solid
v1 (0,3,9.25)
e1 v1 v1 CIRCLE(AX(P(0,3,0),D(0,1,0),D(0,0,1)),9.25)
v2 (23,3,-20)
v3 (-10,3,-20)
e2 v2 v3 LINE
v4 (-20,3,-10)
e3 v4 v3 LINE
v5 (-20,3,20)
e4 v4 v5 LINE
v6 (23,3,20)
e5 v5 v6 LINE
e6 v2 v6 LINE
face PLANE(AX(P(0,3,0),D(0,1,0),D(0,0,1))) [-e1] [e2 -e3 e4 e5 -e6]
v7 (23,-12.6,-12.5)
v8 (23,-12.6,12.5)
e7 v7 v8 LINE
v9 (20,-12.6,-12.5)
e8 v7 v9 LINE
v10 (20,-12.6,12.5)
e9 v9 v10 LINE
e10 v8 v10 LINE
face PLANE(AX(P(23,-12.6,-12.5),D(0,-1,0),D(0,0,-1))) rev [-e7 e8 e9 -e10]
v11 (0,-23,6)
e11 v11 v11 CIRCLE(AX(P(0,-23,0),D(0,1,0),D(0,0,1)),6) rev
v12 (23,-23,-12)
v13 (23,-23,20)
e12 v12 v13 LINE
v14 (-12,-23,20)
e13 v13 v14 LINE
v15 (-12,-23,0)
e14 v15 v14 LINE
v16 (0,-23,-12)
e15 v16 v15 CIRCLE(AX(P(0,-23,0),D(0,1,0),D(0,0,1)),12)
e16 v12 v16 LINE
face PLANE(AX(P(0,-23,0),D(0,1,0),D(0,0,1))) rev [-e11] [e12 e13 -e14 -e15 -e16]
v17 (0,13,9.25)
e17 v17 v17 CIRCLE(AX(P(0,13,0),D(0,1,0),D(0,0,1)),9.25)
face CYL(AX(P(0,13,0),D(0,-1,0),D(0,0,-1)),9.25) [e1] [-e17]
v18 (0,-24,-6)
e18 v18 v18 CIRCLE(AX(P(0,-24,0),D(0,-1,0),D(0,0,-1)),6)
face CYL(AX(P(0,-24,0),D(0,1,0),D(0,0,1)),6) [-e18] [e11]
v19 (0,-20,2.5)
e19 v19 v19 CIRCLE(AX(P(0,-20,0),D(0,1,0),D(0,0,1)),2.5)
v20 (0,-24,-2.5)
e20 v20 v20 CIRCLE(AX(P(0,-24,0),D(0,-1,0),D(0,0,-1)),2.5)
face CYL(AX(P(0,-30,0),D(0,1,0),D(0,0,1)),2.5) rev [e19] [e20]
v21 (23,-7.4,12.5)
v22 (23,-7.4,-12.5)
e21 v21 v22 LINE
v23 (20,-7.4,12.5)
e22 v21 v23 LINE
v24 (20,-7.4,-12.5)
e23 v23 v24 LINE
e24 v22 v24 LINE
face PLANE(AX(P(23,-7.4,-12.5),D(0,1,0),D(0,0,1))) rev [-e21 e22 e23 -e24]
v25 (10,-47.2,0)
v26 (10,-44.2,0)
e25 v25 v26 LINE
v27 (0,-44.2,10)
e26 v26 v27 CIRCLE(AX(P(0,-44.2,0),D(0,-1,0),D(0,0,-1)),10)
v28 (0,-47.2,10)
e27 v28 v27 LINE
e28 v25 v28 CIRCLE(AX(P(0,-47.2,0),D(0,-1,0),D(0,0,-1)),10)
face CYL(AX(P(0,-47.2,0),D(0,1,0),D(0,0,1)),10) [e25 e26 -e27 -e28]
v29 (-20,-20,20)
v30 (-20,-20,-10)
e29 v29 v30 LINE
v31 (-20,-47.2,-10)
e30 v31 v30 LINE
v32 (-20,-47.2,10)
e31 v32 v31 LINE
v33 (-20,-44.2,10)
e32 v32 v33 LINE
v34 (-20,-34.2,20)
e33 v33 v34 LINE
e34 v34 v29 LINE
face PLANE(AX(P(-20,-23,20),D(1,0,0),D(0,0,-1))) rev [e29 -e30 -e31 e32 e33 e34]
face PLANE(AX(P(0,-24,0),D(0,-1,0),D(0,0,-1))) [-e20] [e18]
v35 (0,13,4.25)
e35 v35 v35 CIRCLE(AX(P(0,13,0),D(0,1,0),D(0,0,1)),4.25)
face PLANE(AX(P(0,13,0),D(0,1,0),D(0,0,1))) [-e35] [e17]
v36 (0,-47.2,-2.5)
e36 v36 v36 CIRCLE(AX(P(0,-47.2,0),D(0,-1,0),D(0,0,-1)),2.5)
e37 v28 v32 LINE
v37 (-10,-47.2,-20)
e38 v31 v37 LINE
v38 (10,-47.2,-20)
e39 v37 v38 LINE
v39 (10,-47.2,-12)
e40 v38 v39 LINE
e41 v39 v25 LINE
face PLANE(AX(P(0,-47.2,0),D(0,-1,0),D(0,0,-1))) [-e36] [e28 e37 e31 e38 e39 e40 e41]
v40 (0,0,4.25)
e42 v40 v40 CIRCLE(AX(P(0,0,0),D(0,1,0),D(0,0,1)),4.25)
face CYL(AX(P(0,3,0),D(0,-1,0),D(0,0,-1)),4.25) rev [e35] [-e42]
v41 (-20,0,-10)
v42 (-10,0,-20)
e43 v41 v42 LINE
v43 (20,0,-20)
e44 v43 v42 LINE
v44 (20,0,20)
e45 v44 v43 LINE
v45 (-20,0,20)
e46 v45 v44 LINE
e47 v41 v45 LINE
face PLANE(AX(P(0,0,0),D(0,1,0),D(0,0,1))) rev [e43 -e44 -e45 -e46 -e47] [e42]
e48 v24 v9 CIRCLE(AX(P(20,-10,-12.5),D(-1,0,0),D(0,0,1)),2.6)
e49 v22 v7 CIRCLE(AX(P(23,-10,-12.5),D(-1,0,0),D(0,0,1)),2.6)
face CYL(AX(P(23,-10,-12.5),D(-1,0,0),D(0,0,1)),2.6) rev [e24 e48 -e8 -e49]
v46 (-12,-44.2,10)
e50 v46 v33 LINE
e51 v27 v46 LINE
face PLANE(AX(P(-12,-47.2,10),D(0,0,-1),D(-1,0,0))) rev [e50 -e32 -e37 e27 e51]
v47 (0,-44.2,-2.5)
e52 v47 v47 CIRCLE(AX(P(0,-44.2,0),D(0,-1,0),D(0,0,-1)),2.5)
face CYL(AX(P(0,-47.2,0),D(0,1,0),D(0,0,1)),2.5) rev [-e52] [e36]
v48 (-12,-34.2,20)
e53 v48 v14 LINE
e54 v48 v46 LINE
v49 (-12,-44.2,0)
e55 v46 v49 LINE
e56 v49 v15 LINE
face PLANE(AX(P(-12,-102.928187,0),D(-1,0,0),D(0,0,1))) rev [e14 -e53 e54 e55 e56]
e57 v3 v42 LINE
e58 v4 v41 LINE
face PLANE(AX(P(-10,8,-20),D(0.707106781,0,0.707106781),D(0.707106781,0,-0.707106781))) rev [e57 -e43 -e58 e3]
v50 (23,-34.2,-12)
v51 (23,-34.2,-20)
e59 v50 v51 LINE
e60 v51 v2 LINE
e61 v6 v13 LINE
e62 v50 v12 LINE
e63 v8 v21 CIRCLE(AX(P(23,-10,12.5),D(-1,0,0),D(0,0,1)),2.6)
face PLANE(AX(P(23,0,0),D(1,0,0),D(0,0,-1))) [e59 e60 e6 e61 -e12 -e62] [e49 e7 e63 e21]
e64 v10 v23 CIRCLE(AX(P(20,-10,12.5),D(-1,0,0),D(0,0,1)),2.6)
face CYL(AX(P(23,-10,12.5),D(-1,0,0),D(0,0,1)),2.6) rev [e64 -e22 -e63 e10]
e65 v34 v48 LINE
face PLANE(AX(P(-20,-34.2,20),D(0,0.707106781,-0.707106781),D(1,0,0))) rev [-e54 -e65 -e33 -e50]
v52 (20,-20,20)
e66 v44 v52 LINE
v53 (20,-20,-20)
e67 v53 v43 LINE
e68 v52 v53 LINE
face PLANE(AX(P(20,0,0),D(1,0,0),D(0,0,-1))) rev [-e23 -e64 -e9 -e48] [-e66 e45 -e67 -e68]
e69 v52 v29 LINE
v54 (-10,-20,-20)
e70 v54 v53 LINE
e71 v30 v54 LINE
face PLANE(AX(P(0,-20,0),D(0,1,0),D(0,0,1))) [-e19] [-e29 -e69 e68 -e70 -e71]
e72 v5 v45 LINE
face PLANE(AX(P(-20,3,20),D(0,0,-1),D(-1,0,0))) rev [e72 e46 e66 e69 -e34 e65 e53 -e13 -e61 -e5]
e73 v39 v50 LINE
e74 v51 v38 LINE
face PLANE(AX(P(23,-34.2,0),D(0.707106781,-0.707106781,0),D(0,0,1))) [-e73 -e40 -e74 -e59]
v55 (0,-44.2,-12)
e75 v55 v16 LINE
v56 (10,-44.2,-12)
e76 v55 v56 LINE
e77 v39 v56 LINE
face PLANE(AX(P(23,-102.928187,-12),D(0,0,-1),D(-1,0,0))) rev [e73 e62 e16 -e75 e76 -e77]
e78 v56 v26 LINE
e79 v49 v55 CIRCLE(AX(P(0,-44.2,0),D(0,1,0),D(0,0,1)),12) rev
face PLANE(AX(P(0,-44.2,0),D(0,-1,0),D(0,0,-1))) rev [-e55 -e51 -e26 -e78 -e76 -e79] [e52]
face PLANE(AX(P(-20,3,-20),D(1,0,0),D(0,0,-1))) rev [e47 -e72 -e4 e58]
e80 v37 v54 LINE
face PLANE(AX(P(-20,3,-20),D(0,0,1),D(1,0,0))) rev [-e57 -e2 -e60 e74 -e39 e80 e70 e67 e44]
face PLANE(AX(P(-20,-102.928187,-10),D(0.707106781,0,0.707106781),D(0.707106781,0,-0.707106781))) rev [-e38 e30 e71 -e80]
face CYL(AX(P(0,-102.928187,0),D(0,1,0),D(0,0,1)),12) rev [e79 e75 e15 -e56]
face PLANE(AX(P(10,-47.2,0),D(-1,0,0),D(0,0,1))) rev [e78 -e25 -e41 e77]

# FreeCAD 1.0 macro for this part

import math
import FreeCAD as App
import Part
import Sketcher
from FreeCAD import Vector


def edges_at(feature, points):
    """Names of the edges that pass closest to the given points."""
    edges = feature.Shape.Edges
    near = lambda p: min(range(len(edges)), key=lambda i: edges[i].distToShape(Part.Vertex(*p))[0])
    return sorted({f"Edge{near(p) + 1}" for p in points})


def add_polygon(sketch, points):
    """Adds a closed chain of lines whose ends are joined by coincident constraints."""
    first, n = sketch.GeometryCount, len(points)
    for a, b in zip(points, points[1:] + points[:1]):
        sketch.addGeometry(Part.LineSegment(App.Vector(*a, 0), App.Vector(*b, 0)), False)
    for i in range(n):
        sketch.addConstraint(Sketcher.Constraint("Coincident", first + i, 2, first + (i + 1) % n, 1))

doc = App.newDocument("Part")
body = doc.addObject("PartDesign::Body", "Body")

# Sketch on XZ plane
sketch1 = body.newObject("Sketcher::SketchObject", "Sketch")
sketch1.AttachmentSupport = (doc.getObject("XZ_Plane"), [""])
sketch1.MapMode = "FlatFace"
add_polygon(sketch1, [(-20, -20), (-20, 20), (20, 20), (20, -20)])  # lines 0-3
sketch1.addGeometry(Part.Circle(Vector(0, 0, 0), Vector(0, 0, 1), 4.2), False)  # 4
sketch1.addConstraint(Sketcher.Constraint("Vertical", 0))
sketch1.addConstraint(Sketcher.Constraint("Horizontal", 1))
sketch1.addConstraint(Sketcher.Constraint("Vertical", 2))
sketch1.addConstraint(Sketcher.Constraint("Horizontal", 3))
sketch1.addConstraint(Sketcher.Constraint("Coincident", 4, 3, -1, 1))
sketch1.addConstraint(Sketcher.Constraint("Symmetric", 0, 2, 2, 2, -1, 1))
sketch1.addConstraint(Sketcher.Constraint("Equal", 3, 0))
sketch1.addConstraint(Sketcher.Constraint("Diameter", 4, 8.5))
sketch1.addConstraint(Sketcher.Constraint("DistanceX", 1, 1, 1, 2, 40.0))
pad1 = body.newObject("PartDesign::Pad", "Pad")
pad1.Profile = sketch1
pad1.Length = 3
pad1.Reversed = True

# Sketch on XZ plane
sketch2 = body.newObject("Sketcher::SketchObject", "Sketch001")
sketch2.AttachmentSupport = (doc.getObject("XZ_Plane"), [""])
sketch2.MapMode = "FlatFace"
sketch2.AttachmentOffset = App.Placement(Vector(0, 0, -3), App.Rotation())
sketch2.addGeometry(Part.Circle(Vector(0, 0, 0), Vector(0, 0, 1), 9.2), False)
sketch2.addGeometry(Part.Circle(Vector(0, 0, 0), Vector(0, 0, 1), 4.2), False)
sketch2.addConstraint(Sketcher.Constraint("Coincident", 0, 3, -1, 1))
sketch2.addConstraint(Sketcher.Constraint("Coincident", 1, 3, -1, 1))
sketch2.addConstraint(Sketcher.Constraint("Diameter", 0, 18.5))
sketch2.addConstraint(Sketcher.Constraint("Diameter", 1, 8.5))
pad2 = body.newObject("PartDesign::Pad", "Pad001")
pad2.Profile = sketch2
pad2.Length = 10
pad2.Reversed = True

# Sketch on YZ plane
sketch3 = body.newObject("Sketcher::SketchObject", "Sketch002")
sketch3.AttachmentSupport = (doc.getObject("YZ_Plane"), [""])
sketch3.MapMode = "FlatFace"
sketch3.AttachmentOffset = App.Placement(Vector(0, 0, 20), App.Rotation())
add_polygon(sketch3, [(3, 20), (-20, 20), (-20, -20), (3, -20)])  # lines 0-3
sketch3.addConstraint(Sketcher.Constraint("Horizontal", 0))
sketch3.addConstraint(Sketcher.Constraint("Vertical", 1))
sketch3.addConstraint(Sketcher.Constraint("Horizontal", 2))
sketch3.addConstraint(Sketcher.Constraint("Vertical", 3))
sketch3.addConstraint(Sketcher.Constraint("DistanceX", 0, 2, 0, 1, 23.0))
sketch3.addConstraint(Sketcher.Constraint("DistanceY", 1, 2, 1, 1, 40.0))
sketch3.addConstraint(Sketcher.Constraint("DistanceX", 0, 2, -1, 1, 20.0))
sketch3.addConstraint(Sketcher.Constraint("DistanceY", -1, 1, 0, 2, 20.0))
pad3 = body.newObject("PartDesign::Pad", "Pad002")
pad3.Profile = sketch3
pad3.Length = 3

# Sketch on YZ plane
sketch4 = body.newObject("Sketcher::SketchObject", "Sketch003")
sketch4.AttachmentSupport = (doc.getObject("YZ_Plane"), [""])
sketch4.MapMode = "FlatFace"
sketch4.AttachmentOffset = App.Placement(Vector(0, 0, 20), App.Rotation())
sketch4.addGeometry(Part.LineSegment(Vector(-7.4, 12.5, 0), Vector(-7.4, -12.5, 0)), False)
sketch4.addGeometry(Part.ArcOfCircle(Part.Circle(Vector(-10, -12.5, 0), Vector(0, 0, 1), 2.6), math.radians(180), math.radians(360)), False)
sketch4.addGeometry(Part.LineSegment(Vector(-12.6, -12.5, 0), Vector(-12.6, 12.5, 0)), False)
sketch4.addGeometry(Part.ArcOfCircle(Part.Circle(Vector(-10, 12.5, 0), Vector(0, 0, 1), 2.6), math.radians(0), math.radians(180)), False)
sketch4.addConstraint(Sketcher.Constraint("Tangent", 0, 2, 1, 2))
sketch4.addConstraint(Sketcher.Constraint("Tangent", 1, 1, 2, 1))
sketch4.addConstraint(Sketcher.Constraint("Tangent", 2, 2, 3, 2))
sketch4.addConstraint(Sketcher.Constraint("Tangent", 3, 1, 0, 1))
sketch4.addConstraint(Sketcher.Constraint("Vertical", 0))
sketch4.addConstraint(Sketcher.Constraint("Vertical", 2))
sketch4.addConstraint(Sketcher.Constraint("Radius", 1, 2.6))
sketch4.addConstraint(Sketcher.Constraint("DistanceY", 0, 2, 0, 1, 25.0))
sketch4.addConstraint(Sketcher.Constraint("DistanceX", 1, 3, -1, 1, 10.0))
sketch4.addConstraint(Sketcher.Constraint("DistanceY", 1, 3, -1, 1, 12.5))
pocket1 = body.newObject("PartDesign::Pocket", "Pocket")
pocket1.Profile = sketch4
pocket1.Length = 3
pocket1.Reversed = True

# Sketch on XZ plane
sketch5 = body.newObject("Sketcher::SketchObject", "Sketch004")
sketch5.AttachmentSupport = (doc.getObject("XZ_Plane"), [""])
sketch5.MapMode = "FlatFace"
sketch5.AttachmentOffset = App.Placement(Vector(0, 0, 20), App.Rotation())
add_polygon(sketch5, [(23, -20), (23, 20), (-20, 20), (-20, -20)])  # lines 0-3
sketch5.addConstraint(Sketcher.Constraint("Vertical", 0))
sketch5.addConstraint(Sketcher.Constraint("Horizontal", 1))
sketch5.addConstraint(Sketcher.Constraint("Vertical", 2))
sketch5.addConstraint(Sketcher.Constraint("Horizontal", 3))
sketch5.addConstraint(Sketcher.Constraint("DistanceX", 1, 2, 1, 1, 43.0))
sketch5.addConstraint(Sketcher.Constraint("DistanceY", 0, 1, 0, 2, 40.0))
sketch5.addConstraint(Sketcher.Constraint("DistanceX", -1, 1, 0, 2, 23.0))
sketch5.addConstraint(Sketcher.Constraint("DistanceY", -1, 1, 0, 2, 20.0))
pad4 = body.newObject("PartDesign::Pad", "Pad003")
pad4.Profile = sketch5
pad4.Length = 3

# Sketch on XZ plane
sketch6 = body.newObject("Sketcher::SketchObject", "Sketch005")
sketch6.AttachmentSupport = (doc.getObject("XZ_Plane"), [""])
sketch6.MapMode = "FlatFace"
sketch6.AttachmentOffset = App.Placement(Vector(0, 0, 20), App.Rotation())
sketch6.addGeometry(Part.Circle(Vector(0, 0, 0), Vector(0, 0, 1), 2.5), False)
sketch6.addConstraint(Sketcher.Constraint("Coincident", 0, 3, -1, 1))
sketch6.addConstraint(Sketcher.Constraint("Diameter", 0, 5.0))
pocket2 = body.newObject("PartDesign::Pocket", "Pocket001")
pocket2.Profile = sketch6
pocket2.Length = 10
pocket2.Reversed = True

# Sketch on XZ plane
sketch7 = body.newObject("Sketcher::SketchObject", "Sketch006")
sketch7.AttachmentSupport = (doc.getObject("XZ_Plane"), [""])
sketch7.MapMode = "FlatFace"
sketch7.AttachmentOffset = App.Placement(Vector(0, 0, 23), App.Rotation())
sketch7.addGeometry(Part.Circle(Vector(0, 0, 0), Vector(0, 0, 1), 6), False)
sketch7.addGeometry(Part.Circle(Vector(0, 0, 0), Vector(0, 0, 1), 2.5), False)
sketch7.addConstraint(Sketcher.Constraint("Coincident", 0, 3, -1, 1))
sketch7.addConstraint(Sketcher.Constraint("Coincident", 1, 3, -1, 1))
sketch7.addConstraint(Sketcher.Constraint("Diameter", 0, 12.0))
sketch7.addConstraint(Sketcher.Constraint("Diameter", 1, 5.0))
pad5 = body.newObject("PartDesign::Pad", "Pad004")
pad5.Profile = sketch7
pad5.Length = 1

# Sketch on XZ plane
sketch8 = body.newObject("Sketcher::SketchObject", "Sketch007")
sketch8.AttachmentSupport = (doc.getObject("XZ_Plane"), [""])
sketch8.MapMode = "FlatFace"
sketch8.AttachmentOffset = App.Placement(Vector(0, 0, 23), App.Rotation())
sketch8.addGeometry(Part.LineSegment(Vector(23, -12, 0), Vector(0, -12, 0)), False)
sketch8.addGeometry(Part.ArcOfCircle(Part.Circle(Vector(0, 0, 0), Vector(0, 0, 1), 12), math.radians(-180), math.radians(-90)), False)
sketch8.addGeometry(Part.LineSegment(Vector(-12, 0, 0), Vector(-12, 20, 0)), False)
sketch8.addGeometry(Part.LineSegment(Vector(-12, 20, 0), Vector(-20, 20, 0)), False)
sketch8.addGeometry(Part.LineSegment(Vector(-20, 20, 0), Vector(-20, -10, 0)), False)
sketch8.addGeometry(Part.LineSegment(Vector(-20, -10, 0), Vector(-10, -20, 0)), False)
sketch8.addGeometry(Part.LineSegment(Vector(-10, -20, 0), Vector(23, -20, 0)), False)
sketch8.addGeometry(Part.LineSegment(Vector(23, -20, 0), Vector(23, -12, 0)), False)
sketch8.addConstraint(Sketcher.Constraint("Tangent", 0, 2, 1, 2))
sketch8.addConstraint(Sketcher.Constraint("Tangent", 1, 1, 2, 1))
sketch8.addConstraint(Sketcher.Constraint("Coincident", 2, 2, 3, 1))
sketch8.addConstraint(Sketcher.Constraint("Coincident", 3, 2, 4, 1))
sketch8.addConstraint(Sketcher.Constraint("Coincident", 4, 2, 5, 1))
sketch8.addConstraint(Sketcher.Constraint("Coincident", 5, 2, 6, 1))
sketch8.addConstraint(Sketcher.Constraint("Coincident", 6, 2, 7, 1))
sketch8.addConstraint(Sketcher.Constraint("Coincident", 7, 2, 0, 1))
sketch8.addConstraint(Sketcher.Constraint("Horizontal", 0))
sketch8.addConstraint(Sketcher.Constraint("Vertical", 2))
sketch8.addConstraint(Sketcher.Constraint("Horizontal", 3))
sketch8.addConstraint(Sketcher.Constraint("Vertical", 4))
sketch8.addConstraint(Sketcher.Constraint("Horizontal", 6))
sketch8.addConstraint(Sketcher.Constraint("Vertical", 7))
sketch8.addConstraint(Sketcher.Constraint("Coincident", 1, 3, -1, 1))
sketch8.addConstraint(Sketcher.Constraint("Equal", 3, 7))
sketch8.addConstraint(Sketcher.Constraint("Radius", 1, 12.0))
sketch8.addConstraint(Sketcher.Constraint("DistanceX", 0, 2, 0, 1, 23.0))
sketch8.addConstraint(Sketcher.Constraint("DistanceX", 3, 2, 3, 1, 8.0))
sketch8.addConstraint(Sketcher.Constraint("DistanceX", 6, 1, 6, 2, 33.0))
sketch8.addConstraint(Sketcher.Constraint("DistanceY", 2, 1, 2, 2, 20.0))
sketch8.addConstraint(Sketcher.Constraint("DistanceY", 4, 2, 4, 1, 30.0))
pad6 = body.newObject("PartDesign::Pad", "Pad005")
pad6.Profile = sketch8
pad6.Length = 21.2
doc.recompute()

chamfer = body.newObject("PartDesign::Chamfer", "Chamfer")
chamfer.Base = (pad6, edges_at(pad6, [(-16, -44.2, 20), (23, -44.2, -16)]))
chamfer.Size = 10

# Sketch on XZ plane
sketch9 = body.newObject("Sketcher::SketchObject", "Sketch008")
sketch9.AttachmentSupport = (doc.getObject("XZ_Plane"), [""])
sketch9.MapMode = "FlatFace"
sketch9.AttachmentOffset = App.Placement(Vector(0, 0, 44.2), App.Rotation())
sketch9.addGeometry(Part.LineSegment(Vector(0, 10, 0), Vector(-20, 10, 0)), False)
sketch9.addGeometry(Part.LineSegment(Vector(-20, 10, 0), Vector(-20, -10, 0)), False)
sketch9.addGeometry(Part.LineSegment(Vector(-20, -10, 0), Vector(-10, -20, 0)), False)
sketch9.addGeometry(Part.LineSegment(Vector(-10, -20, 0), Vector(10, -20, 0)), False)
sketch9.addGeometry(Part.LineSegment(Vector(10, -20, 0), Vector(10, 0, 0)), False)
sketch9.addGeometry(Part.ArcOfCircle(Part.Circle(Vector(0, 0, 0), Vector(0, 0, 1), 10), math.radians(0), math.radians(90)), False)
sketch9.addGeometry(Part.Circle(Vector(0, 0, 0), Vector(0, 0, 1), 2.5), False)
sketch9.addConstraint(Sketcher.Constraint("Coincident", 0, 2, 1, 1))
sketch9.addConstraint(Sketcher.Constraint("Coincident", 1, 2, 2, 1))
sketch9.addConstraint(Sketcher.Constraint("Coincident", 2, 2, 3, 1))
sketch9.addConstraint(Sketcher.Constraint("Coincident", 3, 2, 4, 1))
sketch9.addConstraint(Sketcher.Constraint("Tangent", 4, 2, 5, 1))
sketch9.addConstraint(Sketcher.Constraint("Tangent", 5, 2, 0, 1))
sketch9.addConstraint(Sketcher.Constraint("Horizontal", 0))
sketch9.addConstraint(Sketcher.Constraint("Vertical", 1))
sketch9.addConstraint(Sketcher.Constraint("Horizontal", 3))
sketch9.addConstraint(Sketcher.Constraint("Vertical", 4))
sketch9.addConstraint(Sketcher.Constraint("Coincident", 5, 3, -1, 1))
sketch9.addConstraint(Sketcher.Constraint("Coincident", 6, 3, -1, 1))
sketch9.addConstraint(Sketcher.Constraint("Equal", 0, 3))
sketch9.addConstraint(Sketcher.Constraint("Equal", 3, 1))
sketch9.addConstraint(Sketcher.Constraint("Equal", 1, 4))
sketch9.addConstraint(Sketcher.Constraint("Diameter", 6, 5.0))
sketch9.addConstraint(Sketcher.Constraint("Radius", 5, 10.0))
sketch9.addConstraint(Sketcher.Constraint("DistanceX", 0, 2, 0, 1, 20.0))
pad7 = body.newObject("PartDesign::Pad", "Pad006")
pad7.Profile = sketch9
pad7.Length = 3

# Sketch on XZ plane
sketch10 = body.newObject("Sketcher::SketchObject", "Sketch009")
sketch10.AttachmentSupport = (doc.getObject("XZ_Plane"), [""])
sketch10.MapMode = "FlatFace"
sketch10.AttachmentOffset = App.Placement(Vector(0, 0, 23), App.Rotation())
add_polygon(sketch10, [(-10, -20), (-20, -10), (-20, -20)])  # lines 0-2
sketch10.addConstraint(Sketcher.Constraint("Vertical", 1))
sketch10.addConstraint(Sketcher.Constraint("Horizontal", 2))
sketch10.addConstraint(Sketcher.Constraint("Equal", 2, 1))
sketch10.addConstraint(Sketcher.Constraint("DistanceX", 2, 1, 2, 2, 10.0))
sketch10.addConstraint(Sketcher.Constraint("DistanceX", 0, 2, -1, 1, 20.0))
sketch10.addConstraint(Sketcher.Constraint("DistanceY", 0, 2, -1, 1, 10.0))
pocket3 = body.newObject("PartDesign::Pocket", "Pocket002")
pocket3.Profile = sketch10
pocket3.Length = 31

# Sketch on XY plane
sketch11 = body.newObject("Sketcher::SketchObject", "Sketch010")
sketch11.AttachmentSupport = (doc.getObject("XY_Plane"), [""])
sketch11.MapMode = "FlatFace"
sketch11.AttachmentOffset = App.Placement(Vector(0, 0, -20), App.Rotation())
add_polygon(sketch11, [(13, -44.2), (10, -47.2), (10, -44.2)])  # lines 0-2
sketch11.addConstraint(Sketcher.Constraint("Vertical", 1))
sketch11.addConstraint(Sketcher.Constraint("Horizontal", 2))
sketch11.addConstraint(Sketcher.Constraint("Equal", 2, 1))
sketch11.addConstraint(Sketcher.Constraint("DistanceX", 2, 1, 2, 2, 3.0))
sketch11.addConstraint(Sketcher.Constraint("DistanceX", -1, 1, 0, 2, 10.0))
sketch11.addConstraint(Sketcher.Constraint("DistanceY", 0, 2, -1, 1, 47.2))
pad8 = body.newObject("PartDesign::Pad", "Pad007")
pad8.Profile = sketch11
pad8.Length = 8

doc.recompute()
